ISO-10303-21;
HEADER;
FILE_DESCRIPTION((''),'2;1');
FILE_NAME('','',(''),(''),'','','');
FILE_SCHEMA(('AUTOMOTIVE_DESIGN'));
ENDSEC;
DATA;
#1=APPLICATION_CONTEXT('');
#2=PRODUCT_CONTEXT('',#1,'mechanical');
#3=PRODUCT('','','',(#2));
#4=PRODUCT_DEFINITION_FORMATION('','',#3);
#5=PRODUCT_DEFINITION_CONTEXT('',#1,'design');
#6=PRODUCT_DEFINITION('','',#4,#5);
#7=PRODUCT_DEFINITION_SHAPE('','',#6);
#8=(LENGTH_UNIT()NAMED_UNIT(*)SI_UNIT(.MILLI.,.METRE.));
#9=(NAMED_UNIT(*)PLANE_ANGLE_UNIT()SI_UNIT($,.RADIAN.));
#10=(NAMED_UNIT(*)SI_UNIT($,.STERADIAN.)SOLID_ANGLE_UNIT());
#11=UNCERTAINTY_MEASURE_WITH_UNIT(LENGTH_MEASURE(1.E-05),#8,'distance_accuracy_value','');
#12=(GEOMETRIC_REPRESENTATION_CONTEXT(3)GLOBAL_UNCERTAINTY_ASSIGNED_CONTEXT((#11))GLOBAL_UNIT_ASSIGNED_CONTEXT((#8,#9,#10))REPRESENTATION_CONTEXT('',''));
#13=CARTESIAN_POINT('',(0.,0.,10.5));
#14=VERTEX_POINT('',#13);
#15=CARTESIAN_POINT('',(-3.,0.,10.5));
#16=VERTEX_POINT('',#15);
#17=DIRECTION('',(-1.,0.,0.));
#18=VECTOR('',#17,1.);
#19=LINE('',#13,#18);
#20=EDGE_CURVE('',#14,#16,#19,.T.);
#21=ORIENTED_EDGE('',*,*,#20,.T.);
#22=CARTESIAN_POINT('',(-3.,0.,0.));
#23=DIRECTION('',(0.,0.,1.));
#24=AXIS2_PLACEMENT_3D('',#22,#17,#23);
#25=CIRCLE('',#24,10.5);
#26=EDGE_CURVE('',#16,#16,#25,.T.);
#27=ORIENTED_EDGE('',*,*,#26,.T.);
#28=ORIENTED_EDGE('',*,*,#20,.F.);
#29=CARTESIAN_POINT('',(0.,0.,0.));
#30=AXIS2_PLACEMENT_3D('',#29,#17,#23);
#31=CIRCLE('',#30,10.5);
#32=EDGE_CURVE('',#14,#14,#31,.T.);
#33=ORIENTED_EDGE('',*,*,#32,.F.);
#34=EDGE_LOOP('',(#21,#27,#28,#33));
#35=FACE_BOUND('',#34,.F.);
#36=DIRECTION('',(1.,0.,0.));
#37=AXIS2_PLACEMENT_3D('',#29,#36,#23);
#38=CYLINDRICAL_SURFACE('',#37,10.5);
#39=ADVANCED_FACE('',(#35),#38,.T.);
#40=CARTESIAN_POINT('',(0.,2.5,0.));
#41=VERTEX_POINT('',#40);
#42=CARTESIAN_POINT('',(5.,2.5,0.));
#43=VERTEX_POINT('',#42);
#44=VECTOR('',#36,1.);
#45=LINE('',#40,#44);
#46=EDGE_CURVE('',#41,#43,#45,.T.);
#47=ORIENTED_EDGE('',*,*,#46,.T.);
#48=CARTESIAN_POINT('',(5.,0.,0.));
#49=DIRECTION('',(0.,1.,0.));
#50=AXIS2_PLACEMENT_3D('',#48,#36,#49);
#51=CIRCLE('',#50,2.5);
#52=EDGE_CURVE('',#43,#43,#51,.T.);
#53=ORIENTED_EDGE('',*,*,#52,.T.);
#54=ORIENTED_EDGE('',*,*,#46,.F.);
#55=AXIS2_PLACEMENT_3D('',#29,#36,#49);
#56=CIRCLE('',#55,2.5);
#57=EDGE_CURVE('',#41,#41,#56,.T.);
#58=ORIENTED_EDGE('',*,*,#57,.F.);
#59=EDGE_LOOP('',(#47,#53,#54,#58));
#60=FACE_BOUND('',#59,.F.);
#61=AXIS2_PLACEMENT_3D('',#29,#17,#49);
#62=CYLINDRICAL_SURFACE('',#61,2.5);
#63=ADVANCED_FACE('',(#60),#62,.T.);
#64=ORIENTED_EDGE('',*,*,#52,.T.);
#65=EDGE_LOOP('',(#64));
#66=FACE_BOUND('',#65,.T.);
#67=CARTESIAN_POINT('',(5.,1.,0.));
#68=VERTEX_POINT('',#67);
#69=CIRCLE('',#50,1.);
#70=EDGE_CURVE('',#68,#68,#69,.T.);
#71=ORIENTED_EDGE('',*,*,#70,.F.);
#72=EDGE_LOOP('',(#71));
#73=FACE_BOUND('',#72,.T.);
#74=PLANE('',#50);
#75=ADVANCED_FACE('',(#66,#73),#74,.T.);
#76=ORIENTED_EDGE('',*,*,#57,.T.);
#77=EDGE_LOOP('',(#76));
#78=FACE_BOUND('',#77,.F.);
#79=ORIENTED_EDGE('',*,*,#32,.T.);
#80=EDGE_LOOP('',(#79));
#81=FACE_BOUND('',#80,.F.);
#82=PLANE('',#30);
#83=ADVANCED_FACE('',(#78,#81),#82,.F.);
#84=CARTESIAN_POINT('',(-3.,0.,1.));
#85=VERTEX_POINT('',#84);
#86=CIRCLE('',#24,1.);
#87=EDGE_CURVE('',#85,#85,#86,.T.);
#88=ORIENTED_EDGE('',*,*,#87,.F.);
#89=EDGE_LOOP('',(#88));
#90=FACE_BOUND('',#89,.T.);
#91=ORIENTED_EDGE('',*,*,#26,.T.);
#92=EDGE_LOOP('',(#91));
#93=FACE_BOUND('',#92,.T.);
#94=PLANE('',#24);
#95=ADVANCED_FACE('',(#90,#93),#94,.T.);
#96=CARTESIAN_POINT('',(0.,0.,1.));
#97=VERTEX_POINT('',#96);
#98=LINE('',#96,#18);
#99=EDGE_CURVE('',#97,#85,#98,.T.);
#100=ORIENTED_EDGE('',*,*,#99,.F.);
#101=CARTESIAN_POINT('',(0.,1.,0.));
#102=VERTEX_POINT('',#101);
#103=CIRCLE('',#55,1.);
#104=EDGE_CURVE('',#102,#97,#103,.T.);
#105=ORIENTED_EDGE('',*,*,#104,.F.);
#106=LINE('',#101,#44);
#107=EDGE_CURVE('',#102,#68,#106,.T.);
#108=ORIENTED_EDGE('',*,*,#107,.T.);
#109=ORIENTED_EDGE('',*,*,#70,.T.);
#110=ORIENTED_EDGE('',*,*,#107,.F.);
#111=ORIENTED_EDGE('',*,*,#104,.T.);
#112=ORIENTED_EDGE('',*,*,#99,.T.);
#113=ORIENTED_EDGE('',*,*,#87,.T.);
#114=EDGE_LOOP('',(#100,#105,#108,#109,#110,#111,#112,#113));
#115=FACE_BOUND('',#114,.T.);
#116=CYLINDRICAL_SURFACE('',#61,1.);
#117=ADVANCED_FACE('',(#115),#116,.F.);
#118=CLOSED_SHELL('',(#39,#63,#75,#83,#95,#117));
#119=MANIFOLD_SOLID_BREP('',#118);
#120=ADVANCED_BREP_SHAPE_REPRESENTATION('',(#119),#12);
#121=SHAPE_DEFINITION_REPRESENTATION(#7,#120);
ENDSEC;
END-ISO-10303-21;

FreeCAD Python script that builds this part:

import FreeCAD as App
import Part
import Sketcher
Q = App.Units.Quantity

doc = App.newDocument("Part")
body = doc.addObject("PartDesign::Body", "Body")

# Sketch on YZ plane
sketch1 = body.newObject("Sketcher::SketchObject", "Sketch")
sketch1.AttachmentSupport = (doc.getObject("YZ_Plane"), [""])
sketch1.MapMode = "FlatFace"
sketch1.addGeometry([
    Part.Circle(App.Vector(0, 0, 0), App.Vector(0, 0, 1), 2.5),
    Part.Circle(App.Vector(0, 0, 0), App.Vector(0, 0, 1), 1),
], False)
sketch1.addConstraint([
    Sketcher.Constraint("Coincident", 0, 3, -1, 1),
    Sketcher.Constraint("Coincident", 1, 3, -1, 1),
    Sketcher.Constraint("Diameter", 0, Q("5 mm")),
    Sketcher.Constraint("Diameter", 1, Q("2 mm")),
])
pad1 = body.newObject("PartDesign::Pad", "Pad")
pad1.Profile = sketch1
pad1.Length = 5

# Sketch on YZ plane
sketch2 = body.newObject("Sketcher::SketchObject", "Sketch001")
sketch2.AttachmentSupport = (doc.getObject("YZ_Plane"), [""])
sketch2.MapMode = "FlatFace"
sketch2.addGeometry([
    Part.Circle(App.Vector(0, 0, 0), App.Vector(0, 0, 1), 10.5),
    Part.Circle(App.Vector(0, 0, 0), App.Vector(0, 0, 1), 1),
], False)
sketch2.addConstraint([
    Sketcher.Constraint("Coincident", 0, 3, -1, 1),
    Sketcher.Constraint("Coincident", 1, 3, -1, 1),
    Sketcher.Constraint("Diameter", 0, Q("21 mm")),
    Sketcher.Constraint("Diameter", 1, Q("2 mm")),
])
pad2 = body.newObject("PartDesign::Pad", "Pad001")
pad2.Profile = sketch2
pad2.Length = 3
pad2.Reversed = True

doc.recompute()
